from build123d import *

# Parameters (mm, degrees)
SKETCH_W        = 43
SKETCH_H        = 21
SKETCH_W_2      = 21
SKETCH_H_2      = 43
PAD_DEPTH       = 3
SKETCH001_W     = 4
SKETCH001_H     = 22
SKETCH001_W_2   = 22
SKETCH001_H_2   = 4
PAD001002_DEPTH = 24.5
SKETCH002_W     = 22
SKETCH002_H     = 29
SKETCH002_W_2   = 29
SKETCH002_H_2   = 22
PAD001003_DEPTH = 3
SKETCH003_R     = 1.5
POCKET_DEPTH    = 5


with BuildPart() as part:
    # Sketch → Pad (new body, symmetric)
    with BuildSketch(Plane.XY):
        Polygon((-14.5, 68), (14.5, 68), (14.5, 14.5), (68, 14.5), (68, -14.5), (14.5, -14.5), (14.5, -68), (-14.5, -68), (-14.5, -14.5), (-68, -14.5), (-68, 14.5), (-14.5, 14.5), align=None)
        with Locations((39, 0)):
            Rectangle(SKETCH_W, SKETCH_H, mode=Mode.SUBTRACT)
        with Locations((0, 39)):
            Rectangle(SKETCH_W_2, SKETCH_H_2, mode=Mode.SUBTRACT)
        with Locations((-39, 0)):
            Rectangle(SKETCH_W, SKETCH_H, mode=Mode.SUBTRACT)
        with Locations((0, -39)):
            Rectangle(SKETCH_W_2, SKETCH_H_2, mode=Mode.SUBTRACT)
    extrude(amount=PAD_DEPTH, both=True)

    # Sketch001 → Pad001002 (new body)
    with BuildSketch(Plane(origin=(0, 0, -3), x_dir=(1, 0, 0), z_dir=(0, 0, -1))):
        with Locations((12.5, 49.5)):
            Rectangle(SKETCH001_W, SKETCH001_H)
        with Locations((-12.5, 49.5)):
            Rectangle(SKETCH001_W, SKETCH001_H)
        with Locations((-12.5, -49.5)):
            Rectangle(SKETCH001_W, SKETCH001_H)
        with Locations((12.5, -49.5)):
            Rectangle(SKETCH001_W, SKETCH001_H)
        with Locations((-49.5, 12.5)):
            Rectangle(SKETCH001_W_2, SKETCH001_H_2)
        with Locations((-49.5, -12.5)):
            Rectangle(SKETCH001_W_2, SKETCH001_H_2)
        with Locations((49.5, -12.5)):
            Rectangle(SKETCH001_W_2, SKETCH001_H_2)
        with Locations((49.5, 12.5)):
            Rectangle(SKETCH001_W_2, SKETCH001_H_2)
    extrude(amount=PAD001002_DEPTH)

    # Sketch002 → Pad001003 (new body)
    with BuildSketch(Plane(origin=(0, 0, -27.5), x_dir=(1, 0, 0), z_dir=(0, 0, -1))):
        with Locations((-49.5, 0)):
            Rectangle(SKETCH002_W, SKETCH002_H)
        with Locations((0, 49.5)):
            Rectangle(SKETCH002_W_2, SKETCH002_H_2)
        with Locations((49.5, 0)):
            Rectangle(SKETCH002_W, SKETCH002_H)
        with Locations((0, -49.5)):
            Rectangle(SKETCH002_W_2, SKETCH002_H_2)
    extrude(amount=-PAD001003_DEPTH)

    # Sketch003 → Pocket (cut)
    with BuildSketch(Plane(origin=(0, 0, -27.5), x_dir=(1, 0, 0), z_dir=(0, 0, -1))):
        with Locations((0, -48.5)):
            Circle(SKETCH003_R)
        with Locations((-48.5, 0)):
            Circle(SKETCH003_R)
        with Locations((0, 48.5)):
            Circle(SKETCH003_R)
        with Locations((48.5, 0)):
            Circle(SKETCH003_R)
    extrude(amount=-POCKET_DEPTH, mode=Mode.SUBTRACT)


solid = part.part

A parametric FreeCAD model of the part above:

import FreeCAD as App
import Part
import Sketcher
from FreeCAD import Vector

doc = App.newDocument("Part")
body = doc.addObject("PartDesign::Body", "Body")

# Sketch on XY plane
sketch1 = doc.addObject("Sketcher::SketchObject", "Sketch")
body.addObject(sketch1)
sketch1.AttachmentSupport = (doc.XY_Plane, [""])
sketch1.MapMode = "FlatFace"
sketch1.addGeometry([
    Part.LineSegment(Vector(14.5, 68, 0), Vector(-14.5, 68, 0)),  # 0
    Part.LineSegment(Vector(-14.5, 68, 0), Vector(-14.5, 14.5, 0)),  # 1
    Part.LineSegment(Vector(-14.5, 14.5, 0), Vector(-68, 14.5, 0)),  # 2
    Part.LineSegment(Vector(-68, 14.5, 0), Vector(-68, -14.5, 0)),  # 3
    Part.LineSegment(Vector(-68, -14.5, 0), Vector(-14.5, -14.5, 0)),  # 4
    Part.LineSegment(Vector(-14.5, -14.5, 0), Vector(-14.5, -68, 0)),  # 5
    Part.LineSegment(Vector(-14.5, -68, 0), Vector(14.5, -68, 0)),  # 6
    Part.LineSegment(Vector(14.5, -68, 0), Vector(14.5, -14.5, 0)),  # 7
    Part.LineSegment(Vector(14.5, -14.5, 0), Vector(68, -14.5, 0)),  # 8
    Part.LineSegment(Vector(68, -14.5, 0), Vector(68, 14.5, 0)),  # 9
    Part.LineSegment(Vector(68, 14.5, 0), Vector(14.5, 14.5, 0)),  # 10
    Part.LineSegment(Vector(14.5, 14.5, 0), Vector(14.5, 68, 0)),  # 11
    Part.LineSegment(Vector(-10.5, -60.5, 0), Vector(-10.5, -17.5, 0)),  # 12
    Part.LineSegment(Vector(-10.5, -17.5, 0), Vector(10.5, -17.5, 0)),  # 13
    Part.LineSegment(Vector(10.5, -17.5, 0), Vector(10.5, -60.5, 0)),  # 14
    Part.LineSegment(Vector(10.5, -60.5, 0), Vector(-10.5, -60.5, 0)),  # 15
    Part.LineSegment(Vector(17.5, -10.5, 0), Vector(17.5, 10.5, 0)),  # 16
    Part.LineSegment(Vector(17.5, 10.5, 0), Vector(60.5, 10.5, 0)),  # 17
    Part.LineSegment(Vector(60.5, 10.5, 0), Vector(60.5, -10.5, 0)),  # 18
    Part.LineSegment(Vector(60.5, -10.5, 0), Vector(17.5, -10.5, 0)),  # 19
    Part.LineSegment(Vector(-60.5, -10.5, 0), Vector(-60.5, 10.5, 0)),  # 20
    Part.LineSegment(Vector(-60.5, 10.5, 0), Vector(-17.5, 10.5, 0)),  # 21
    Part.LineSegment(Vector(-17.5, 10.5, 0), Vector(-17.5, -10.5, 0)),  # 22
    Part.LineSegment(Vector(-17.5, -10.5, 0), Vector(-60.5, -10.5, 0)),  # 23
    Part.LineSegment(Vector(-10.5, 17.5, 0), Vector(-10.5, 60.5, 0)),  # 24
    Part.LineSegment(Vector(-10.5, 60.5, 0), Vector(10.5, 60.5, 0)),  # 25
    Part.LineSegment(Vector(10.5, 60.5, 0), Vector(10.5, 17.5, 0)),  # 26
    Part.LineSegment(Vector(10.5, 17.5, 0), Vector(-10.5, 17.5, 0)),  # 27
], False)
sketch1.addConstraint([
    Sketcher.Constraint("Coincident", 0, 2, 1, 1),
    Sketcher.Constraint("Coincident", 1, 2, 2, 1),
    Sketcher.Constraint("Coincident", 2, 2, 3, 1),
    Sketcher.Constraint("Coincident", 3, 2, 4, 1),
    Sketcher.Constraint("Coincident", 4, 2, 5, 1),
    Sketcher.Constraint("Coincident", 5, 2, 6, 1),
    Sketcher.Constraint("Coincident", 6, 2, 7, 1),
    Sketcher.Constraint("Coincident", 7, 2, 8, 1),
    Sketcher.Constraint("Coincident", 8, 2, 9, 1),
    Sketcher.Constraint("Coincident", 9, 2, 10, 1),
    Sketcher.Constraint("Coincident", 10, 2, 11, 1),
    Sketcher.Constraint("Coincident", 11, 2, 0, 1),
    Sketcher.Constraint("Coincident", 12, 2, 13, 1),
    Sketcher.Constraint("Coincident", 13, 2, 14, 1),
    Sketcher.Constraint("Coincident", 14, 2, 15, 1),
    Sketcher.Constraint("Coincident", 15, 2, 12, 1),
    Sketcher.Constraint("Coincident", 16, 2, 17, 1),
    Sketcher.Constraint("Coincident", 17, 2, 18, 1),
    Sketcher.Constraint("Coincident", 18, 2, 19, 1),
    Sketcher.Constraint("Coincident", 19, 2, 16, 1),
    Sketcher.Constraint("Coincident", 20, 2, 21, 1),
    Sketcher.Constraint("Coincident", 21, 2, 22, 1),
    Sketcher.Constraint("Coincident", 22, 2, 23, 1),
    Sketcher.Constraint("Coincident", 23, 2, 20, 1),
    Sketcher.Constraint("Coincident", 24, 2, 25, 1),
    Sketcher.Constraint("Coincident", 25, 2, 26, 1),
    Sketcher.Constraint("Coincident", 26, 2, 27, 1),
    Sketcher.Constraint("Coincident", 27, 2, 24, 1),
    Sketcher.Constraint("Horizontal", 0),
    Sketcher.Constraint("Vertical", 1),
    Sketcher.Constraint("Horizontal", 2),
    Sketcher.Constraint("Vertical", 3),
    Sketcher.Constraint("Horizontal", 4),
    Sketcher.Constraint("Vertical", 5),
    Sketcher.Constraint("Horizontal", 6),
    Sketcher.Constraint("Vertical", 7),
    Sketcher.Constraint("Horizontal", 8),
    Sketcher.Constraint("Vertical", 9),
    Sketcher.Constraint("Horizontal", 10),
    Sketcher.Constraint("Vertical", 11),
    Sketcher.Constraint("Vertical", 12),
    Sketcher.Constraint("Horizontal", 13),
    Sketcher.Constraint("Vertical", 14),
    Sketcher.Constraint("Horizontal", 15),
    Sketcher.Constraint("Vertical", 16),
    Sketcher.Constraint("Horizontal", 17),
    Sketcher.Constraint("Vertical", 18),
    Sketcher.Constraint("Horizontal", 19),
    Sketcher.Constraint("Vertical", 20),
    Sketcher.Constraint("Horizontal", 21),
    Sketcher.Constraint("Vertical", 22),
    Sketcher.Constraint("Horizontal", 23),
    Sketcher.Constraint("Vertical", 24),
    Sketcher.Constraint("Horizontal", 25),
    Sketcher.Constraint("Vertical", 26),
    Sketcher.Constraint("Horizontal", 27),
    Sketcher.Constraint("Symmetric", 0, 2, 6, 2, -1, 1),
    Sketcher.Constraint("Symmetric", 2, 2, 8, 2, -1, 1),
    Sketcher.Constraint("Symmetric", 4, 2, 10, 2, -1, 1),
    Sketcher.Constraint("Symmetric", 18, 2, 20, 2, -1, 1),
    Sketcher.Constraint("Symmetric", 16, 2, 22, 2, -1, 1),
    Sketcher.Constraint("Symmetric", 14, 2, 24, 2, -1, 1),
    Sketcher.Constraint("Symmetric", 12, 2, 26, 2, -1, 1),
    Sketcher.Constraint("Symmetric", 4, 2, 7, 2, -2),
    Sketcher.Constraint("Horizontal", 17, 2, 20, 2),
    Sketcher.Constraint("Vertical", 15, 2, 24, 2),
    Sketcher.Constraint("Equal", 10, 1),
    Sketcher.Constraint("Equal", 6, 3),
    Sketcher.Constraint("Equal", 23, 12),
    Sketcher.Constraint("Equal", 27, 16),
    Sketcher.Constraint("DistanceX", 0, 2, 0, 1, 29.0),
    Sketcher.Constraint("DistanceX", 13, 1, 13, 2, 21.0),
    Sketcher.Constraint("DistanceX", 17, 1, 17, 2, 43.0),
    Sketcher.Constraint("DistanceX", 2, 2, 2, 1, 53.5),
    Sketcher.Constraint("DistanceY", 12, 2, 4, 2, 3.0),
    Sketcher.Constraint("DistanceX", 10, 2, 16, 2, 3.0),
])
pad1 = doc.addObject("PartDesign::Pad", "Pad")
body.addObject(pad1)
pad1.Profile = sketch1
pad1.Length = 6
pad1.Midplane = True

# Sketch on XY plane
sketch2 = doc.addObject("Sketcher::SketchObject", "Sketch001")
body.addObject(sketch2)
sketch2.AttachmentSupport = (doc.XY_Plane, [""])
sketch2.MapMode = "FlatFace"
sketch2.AttachmentOffset = App.Placement(Vector(0, 0, -3), App.Rotation())
sketch2.addGeometry([
    Part.LineSegment(Vector(10.5, -60.5, 0), Vector(10.5, -38.5, 0)),  # 0
    Part.LineSegment(Vector(10.5, -38.5, 0), Vector(14.5, -38.5, 0)),  # 1
    Part.LineSegment(Vector(14.5, -38.5, 0), Vector(14.5, -60.5, 0)),  # 2
    Part.LineSegment(Vector(14.5, -60.5, 0), Vector(10.5, -60.5, 0)),  # 3
    Part.LineSegment(Vector(-14.5, -60.5, 0), Vector(-14.5, -38.5, 0)),  # 4
    Part.LineSegment(Vector(-14.5, -38.5, 0), Vector(-10.5, -38.5, 0)),  # 5
    Part.LineSegment(Vector(-10.5, -38.5, 0), Vector(-10.5, -60.5, 0)),  # 6
    Part.LineSegment(Vector(-10.5, -60.5, 0), Vector(-14.5, -60.5, 0)),  # 7
    Part.LineSegment(Vector(-14.5, 38.5, 0), Vector(-14.5, 60.5, 0)),  # 8
    Part.LineSegment(Vector(-14.5, 60.5, 0), Vector(-10.5, 60.5, 0)),  # 9
    Part.LineSegment(Vector(-10.5, 60.5, 0), Vector(-10.5, 38.5, 0)),  # 10
    Part.LineSegment(Vector(-10.5, 38.5, 0), Vector(-14.5, 38.5, 0)),  # 11
    Part.LineSegment(Vector(10.5, 38.5, 0), Vector(10.5, 60.5, 0)),  # 12
    Part.LineSegment(Vector(10.5, 60.5, 0), Vector(14.5, 60.5, 0)),  # 13
    Part.LineSegment(Vector(14.5, 60.5, 0), Vector(14.5, 38.5, 0)),  # 14
    Part.LineSegment(Vector(14.5, 38.5, 0), Vector(10.5, 38.5, 0)),  # 15
    Part.LineSegment(Vector(-60.5, -14.5, 0), Vector(-60.5, -10.5, 0)),  # 16
    Part.LineSegment(Vector(-60.5, -10.5, 0), Vector(-38.5, -10.5, 0)),  # 17
    Part.LineSegment(Vector(-38.5, -10.5, 0), Vector(-38.5, -14.5, 0)),  # 18
    Part.LineSegment(Vector(-38.5, -14.5, 0), Vector(-60.5, -14.5, 0)),  # 19
    Part.LineSegment(Vector(-60.5, 10.5, 0), Vector(-60.5, 14.5, 0)),  # 20
    Part.LineSegment(Vector(-60.5, 14.5, 0), Vector(-38.5, 14.5, 0)),  # 21
    Part.LineSegment(Vector(-38.5, 14.5, 0), Vector(-38.5, 10.5, 0)),  # 22
    Part.LineSegment(Vector(-38.5, 10.5, 0), Vector(-60.5, 10.5, 0)),  # 23
    Part.LineSegment(Vector(38.5, 10.5, 0), Vector(38.5, 14.5, 0)),  # 24
    Part.LineSegment(Vector(38.5, 14.5, 0), Vector(60.5, 14.5, 0)),  # 25
    Part.LineSegment(Vector(60.5, 14.5, 0), Vector(60.5, 10.5, 0)),  # 26
    Part.LineSegment(Vector(60.5, 10.5, 0), Vector(38.5, 10.5, 0)),  # 27
    Part.LineSegment(Vector(38.5, -14.5, 0), Vector(38.5, -10.5, 0)),  # 28
    Part.LineSegment(Vector(38.5, -10.5, 0), Vector(60.5, -10.5, 0)),  # 29
    Part.LineSegment(Vector(60.5, -10.5, 0), Vector(60.5, -14.5, 0)),  # 30
    Part.LineSegment(Vector(60.5, -14.5, 0), Vector(38.5, -14.5, 0)),  # 31
], False)
sketch2.addConstraint([
    Sketcher.Constraint("Coincident", 0, 2, 1, 1),
    Sketcher.Constraint("Coincident", 1, 2, 2, 1),
    Sketcher.Constraint("Coincident", 2, 2, 3, 1),
    Sketcher.Constraint("Coincident", 3, 2, 0, 1),
    Sketcher.Constraint("Coincident", 4, 2, 5, 1),
    Sketcher.Constraint("Coincident", 5, 2, 6, 1),
    Sketcher.Constraint("Coincident", 6, 2, 7, 1),
    Sketcher.Constraint("Coincident", 7, 2, 4, 1),
    Sketcher.Constraint("Coincident", 8, 2, 9, 1),
    Sketcher.Constraint("Coincident", 9, 2, 10, 1),
    Sketcher.Constraint("Coincident", 10, 2, 11, 1),
    Sketcher.Constraint("Coincident", 11, 2, 8, 1),
    Sketcher.Constraint("Coincident", 12, 2, 13, 1),
    Sketcher.Constraint("Coincident", 13, 2, 14, 1),
    Sketcher.Constraint("Coincident", 14, 2, 15, 1),
    Sketcher.Constraint("Coincident", 15, 2, 12, 1),
    Sketcher.Constraint("Coincident", 16, 2, 17, 1),
    Sketcher.Constraint("Coincident", 17, 2, 18, 1),
    Sketcher.Constraint("Coincident", 18, 2, 19, 1),
    Sketcher.Constraint("Coincident", 19, 2, 16, 1),
    Sketcher.Constraint("Coincident", 20, 2, 21, 1),
    Sketcher.Constraint("Coincident", 21, 2, 22, 1),
    Sketcher.Constraint("Coincident", 22, 2, 23, 1),
    Sketcher.Constraint("Coincident", 23, 2, 20, 1),
    Sketcher.Constraint("Coincident", 24, 2, 25, 1),
    Sketcher.Constraint("Coincident", 25, 2, 26, 1),
    Sketcher.Constraint("Coincident", 26, 2, 27, 1),
    Sketcher.Constraint("Coincident", 27, 2, 24, 1),
    Sketcher.Constraint("Coincident", 28, 2, 29, 1),
    Sketcher.Constraint("Coincident", 29, 2, 30, 1),
    Sketcher.Constraint("Coincident", 30, 2, 31, 1),
    Sketcher.Constraint("Coincident", 31, 2, 28, 1),
    Sketcher.Constraint("Vertical", 0),
    Sketcher.Constraint("Horizontal", 1),
    Sketcher.Constraint("Vertical", 2),
    Sketcher.Constraint("Horizontal", 3),
    Sketcher.Constraint("Vertical", 4),
    Sketcher.Constraint("Horizontal", 5),
    Sketcher.Constraint("Vertical", 6),
    Sketcher.Constraint("Horizontal", 7),
    Sketcher.Constraint("Vertical", 8),
    Sketcher.Constraint("Horizontal", 9),
    Sketcher.Constraint("Vertical", 10),
    Sketcher.Constraint("Horizontal", 11),
    Sketcher.Constraint("Vertical", 12),
    Sketcher.Constraint("Horizontal", 13),
    Sketcher.Constraint("Vertical", 14),
    Sketcher.Constraint("Horizontal", 15),
    Sketcher.Constraint("Vertical", 16),
    Sketcher.Constraint("Horizontal", 17),
    Sketcher.Constraint("Vertical", 18),
    Sketcher.Constraint("Horizontal", 19),
    Sketcher.Constraint("Vertical", 20),
    Sketcher.Constraint("Horizontal", 21),
    Sketcher.Constraint("Vertical", 22),
    Sketcher.Constraint("Horizontal", 23),
    Sketcher.Constraint("Vertical", 24),
    Sketcher.Constraint("Horizontal", 25),
    Sketcher.Constraint("Vertical", 26),
    Sketcher.Constraint("Horizontal", 27),
    Sketcher.Constraint("Vertical", 28),
    Sketcher.Constraint("Horizontal", 29),
    Sketcher.Constraint("Vertical", 30),
    Sketcher.Constraint("Horizontal", 31),
    Sketcher.Constraint("Symmetric", 2, 2, 8, 2, -1, 1),
    Sketcher.Constraint("Symmetric", 0, 2, 10, 2, -1, 1),
    Sketcher.Constraint("Symmetric", 6, 2, 12, 2, -1, 1),
    Sketcher.Constraint("Symmetric", 4, 2, 14, 2, -1, 1),
    Sketcher.Constraint("Symmetric", 18, 2, 24, 2, -1, 1),
    Sketcher.Constraint("Symmetric", 16, 2, 26, 2, -1, 1),
    Sketcher.Constraint("Symmetric", 22, 2, 28, 2, -1, 1),
    Sketcher.Constraint("Symmetric", 20, 2, 30, 2, -1, 1),
    Sketcher.Constraint("Symmetric", 1, 2, 4, 2, -2),
    Sketcher.Constraint("Symmetric", 3, 2, 6, 2, -2),
    Sketcher.Constraint("Symmetric", 21, 2, 24, 2, -2),
    Sketcher.Constraint("Symmetric", 23, 2, 26, 2, -2),
    Sketcher.Constraint("Equal", 31, 0),
    Sketcher.Constraint("Equal", 15, 16),
    Sketcher.Constraint("DistanceX", 1, 1, 1, 2, 4.0),
    Sketcher.Constraint("DistanceX", 17, 1, 17, 2, 22.0),
    Sketcher.Constraint("DistanceX", 4, 2, 0, 2, 25.0),
    Sketcher.Constraint("DistanceY", 4, 2, 8, 2, 99.0),
    Sketcher.Constraint("DistanceX", 16, 2, 4, 2, 46.0),
    Sketcher.Constraint("DistanceY", 4, 2, 16, 2, 28.0),
])
pad2 = doc.addObject("PartDesign::Pad", "Pad001")
body.addObject(pad2)
pad2.Profile = sketch2
pad2.Length = 24.5
pad2.Reversed = True

# Sketch on XY plane
sketch3 = doc.addObject("Sketcher::SketchObject", "Sketch002")
body.addObject(sketch3)
sketch3.AttachmentSupport = (doc.XY_Plane, [""])
sketch3.MapMode = "FlatFace"
sketch3.AttachmentOffset = App.Placement(Vector(0, 0, -27.5), App.Rotation())
sketch3.addGeometry([
    Part.LineSegment(Vector(-60.5, -14.5, 0), Vector(-60.5, 14.5, 0)),  # 0
    Part.LineSegment(Vector(-60.5, 14.5, 0), Vector(-38.5, 14.5, 0)),  # 1
    Part.LineSegment(Vector(-38.5, 14.5, 0), Vector(-38.5, -14.5, 0)),  # 2
    Part.LineSegment(Vector(-38.5, -14.5, 0), Vector(-60.5, -14.5, 0)),  # 3
    Part.LineSegment(Vector(-14.5, -60.5, 0), Vector(-14.5, -38.5, 0)),  # 4
    Part.LineSegment(Vector(-14.5, -38.5, 0), Vector(14.5, -38.5, 0)),  # 5
    Part.LineSegment(Vector(14.5, -38.5, 0), Vector(14.5, -60.5, 0)),  # 6
    Part.LineSegment(Vector(14.5, -60.5, 0), Vector(-14.5, -60.5, 0)),  # 7
    Part.LineSegment(Vector(38.5, -14.5, 0), Vector(38.5, 14.5, 0)),  # 8
    Part.LineSegment(Vector(38.5, 14.5, 0), Vector(60.5, 14.5, 0)),  # 9
    Part.LineSegment(Vector(60.5, 14.5, 0), Vector(60.5, -14.5, 0)),  # 10
    Part.LineSegment(Vector(60.5, -14.5, 0), Vector(38.5, -14.5, 0)),  # 11
    Part.LineSegment(Vector(-14.5, 38.5, 0), Vector(-14.5, 60.5, 0)),  # 12
    Part.LineSegment(Vector(-14.5, 60.5, 0), Vector(14.5, 60.5, 0)),  # 13
    Part.LineSegment(Vector(14.5, 60.5, 0), Vector(14.5, 38.5, 0)),  # 14
    Part.LineSegment(Vector(14.5, 38.5, 0), Vector(-14.5, 38.5, 0)),  # 15
], False)
sketch3.addConstraint([
    Sketcher.Constraint("Coincident", 0, 2, 1, 1),
    Sketcher.Constraint("Coincident", 1, 2, 2, 1),
    Sketcher.Constraint("Coincident", 2, 2, 3, 1),
    Sketcher.Constraint("Coincident", 3, 2, 0, 1),
    Sketcher.Constraint("Coincident", 4, 2, 5, 1),
    Sketcher.Constraint("Coincident", 5, 2, 6, 1),
    Sketcher.Constraint("Coincident", 6, 2, 7, 1),
    Sketcher.Constraint("Coincident", 7, 2, 4, 1),
    Sketcher.Constraint("Coincident", 8, 2, 9, 1),
    Sketcher.Constraint("Coincident", 9, 2, 10, 1),
    Sketcher.Constraint("Coincident", 10, 2, 11, 1),
    Sketcher.Constraint("Coincident", 11, 2, 8, 1),
    Sketcher.Constraint("Coincident", 12, 2, 13, 1),
    Sketcher.Constraint("Coincident", 13, 2, 14, 1),
    Sketcher.Constraint("Coincident", 14, 2, 15, 1),
    Sketcher.Constraint("Coincident", 15, 2, 12, 1),
    Sketcher.Constraint("Vertical", 0),
    Sketcher.Constraint("Horizontal", 1),
    Sketcher.Constraint("Vertical", 2),
    Sketcher.Constraint("Horizontal", 3),
    Sketcher.Constraint("Vertical", 4),
    Sketcher.Constraint("Horizontal", 5),
    Sketcher.Constraint("Vertical", 6),
    Sketcher.Constraint("Horizontal", 7),
    Sketcher.Constraint("Vertical", 8),
    Sketcher.Constraint("Horizontal", 9),
    Sketcher.Constraint("Vertical", 10),
    Sketcher.Constraint("Horizontal", 11),
    Sketcher.Constraint("Vertical", 12),
    Sketcher.Constraint("Horizontal", 13),
    Sketcher.Constraint("Vertical", 14),
    Sketcher.Constraint("Horizontal", 15),
    Sketcher.Constraint("Symmetric", 2, 2, 8, 2, -1, 1),
    Sketcher.Constraint("Symmetric", 0, 2, 10, 2, -1, 1),
    Sketcher.Constraint("Symmetric", 6, 2, 12, 2, -1, 1),
    Sketcher.Constraint("Symmetric", 4, 2, 14, 2, -1, 1),
    Sketcher.Constraint("Horizontal", 1, 2, 8, 2),
    Sketcher.Constraint("Vertical", 7, 2, 12, 2),
    Sketcher.Constraint("Equal", 15, 0),
    Sketcher.Constraint("Equal", 11, 4),
    Sketcher.Constraint("DistanceX", 1, 1, 1, 2, 22.0),
    Sketcher.Constraint("DistanceX", 5, 1, 5, 2, 29.0),
    Sketcher.Constraint("DistanceX", 2, 2, 4, 2, 24.0),
    Sketcher.Constraint("DistanceY", 4, 2, 2, 2, 24.0),
])
pad3 = doc.addObject("PartDesign::Pad", "Pad002")
body.addObject(pad3)
pad3.Profile = sketch3
pad3.Length = 3

# Sketch on XY plane
sketch4 = doc.addObject("Sketcher::SketchObject", "Sketch003")
body.addObject(sketch4)
sketch4.AttachmentSupport = (doc.XY_Plane, [""])
sketch4.MapMode = "FlatFace"
sketch4.AttachmentOffset = App.Placement(Vector(0, 0, -27.5), App.Rotation())
sketch4.addGeometry([
    Part.Circle(Vector(0, 48.5, 0), Vector(0, 0, 1), 1.5),
    Part.Circle(Vector(-48.5, 0, 0), Vector(0, 0, 1), 1.5),
    Part.Circle(Vector(0, -48.5, 0), Vector(0, 0, 1), 1.5),
    Part.Circle(Vector(48.5, 0, 0), Vector(0, 0, 1), 1.5),
], False)
sketch4.addConstraint([
    Sketcher.Constraint("Equal", 0, 1),
    Sketcher.Constraint("Equal", 1, 2),
    Sketcher.Constraint("Equal", 2, 3),
    Sketcher.Constraint("Symmetric", 0, 3, 2, 3, -1, 1),
    Sketcher.Constraint("Symmetric", 1, 3, 3, 3, -1, 1),
    Sketcher.Constraint("PointOnObject", 0, 3, -2),
    Sketcher.Constraint("PointOnObject", 1, 3, -1),
    Sketcher.Constraint("Diameter", 0, 3.0),
    Sketcher.Constraint("DistanceY", 2, 3, 0, 3, 97.0),
    Sketcher.Constraint("DistanceX", 1, 3, 3, 3, 97.0),
])
pocket1 = doc.addObject("PartDesign::Pocket", "Pocket")
body.addObject(pocket1)
pocket1.Profile = sketch4
pocket1.Length = 5
pocket1.Reversed = True

doc.recompute()
